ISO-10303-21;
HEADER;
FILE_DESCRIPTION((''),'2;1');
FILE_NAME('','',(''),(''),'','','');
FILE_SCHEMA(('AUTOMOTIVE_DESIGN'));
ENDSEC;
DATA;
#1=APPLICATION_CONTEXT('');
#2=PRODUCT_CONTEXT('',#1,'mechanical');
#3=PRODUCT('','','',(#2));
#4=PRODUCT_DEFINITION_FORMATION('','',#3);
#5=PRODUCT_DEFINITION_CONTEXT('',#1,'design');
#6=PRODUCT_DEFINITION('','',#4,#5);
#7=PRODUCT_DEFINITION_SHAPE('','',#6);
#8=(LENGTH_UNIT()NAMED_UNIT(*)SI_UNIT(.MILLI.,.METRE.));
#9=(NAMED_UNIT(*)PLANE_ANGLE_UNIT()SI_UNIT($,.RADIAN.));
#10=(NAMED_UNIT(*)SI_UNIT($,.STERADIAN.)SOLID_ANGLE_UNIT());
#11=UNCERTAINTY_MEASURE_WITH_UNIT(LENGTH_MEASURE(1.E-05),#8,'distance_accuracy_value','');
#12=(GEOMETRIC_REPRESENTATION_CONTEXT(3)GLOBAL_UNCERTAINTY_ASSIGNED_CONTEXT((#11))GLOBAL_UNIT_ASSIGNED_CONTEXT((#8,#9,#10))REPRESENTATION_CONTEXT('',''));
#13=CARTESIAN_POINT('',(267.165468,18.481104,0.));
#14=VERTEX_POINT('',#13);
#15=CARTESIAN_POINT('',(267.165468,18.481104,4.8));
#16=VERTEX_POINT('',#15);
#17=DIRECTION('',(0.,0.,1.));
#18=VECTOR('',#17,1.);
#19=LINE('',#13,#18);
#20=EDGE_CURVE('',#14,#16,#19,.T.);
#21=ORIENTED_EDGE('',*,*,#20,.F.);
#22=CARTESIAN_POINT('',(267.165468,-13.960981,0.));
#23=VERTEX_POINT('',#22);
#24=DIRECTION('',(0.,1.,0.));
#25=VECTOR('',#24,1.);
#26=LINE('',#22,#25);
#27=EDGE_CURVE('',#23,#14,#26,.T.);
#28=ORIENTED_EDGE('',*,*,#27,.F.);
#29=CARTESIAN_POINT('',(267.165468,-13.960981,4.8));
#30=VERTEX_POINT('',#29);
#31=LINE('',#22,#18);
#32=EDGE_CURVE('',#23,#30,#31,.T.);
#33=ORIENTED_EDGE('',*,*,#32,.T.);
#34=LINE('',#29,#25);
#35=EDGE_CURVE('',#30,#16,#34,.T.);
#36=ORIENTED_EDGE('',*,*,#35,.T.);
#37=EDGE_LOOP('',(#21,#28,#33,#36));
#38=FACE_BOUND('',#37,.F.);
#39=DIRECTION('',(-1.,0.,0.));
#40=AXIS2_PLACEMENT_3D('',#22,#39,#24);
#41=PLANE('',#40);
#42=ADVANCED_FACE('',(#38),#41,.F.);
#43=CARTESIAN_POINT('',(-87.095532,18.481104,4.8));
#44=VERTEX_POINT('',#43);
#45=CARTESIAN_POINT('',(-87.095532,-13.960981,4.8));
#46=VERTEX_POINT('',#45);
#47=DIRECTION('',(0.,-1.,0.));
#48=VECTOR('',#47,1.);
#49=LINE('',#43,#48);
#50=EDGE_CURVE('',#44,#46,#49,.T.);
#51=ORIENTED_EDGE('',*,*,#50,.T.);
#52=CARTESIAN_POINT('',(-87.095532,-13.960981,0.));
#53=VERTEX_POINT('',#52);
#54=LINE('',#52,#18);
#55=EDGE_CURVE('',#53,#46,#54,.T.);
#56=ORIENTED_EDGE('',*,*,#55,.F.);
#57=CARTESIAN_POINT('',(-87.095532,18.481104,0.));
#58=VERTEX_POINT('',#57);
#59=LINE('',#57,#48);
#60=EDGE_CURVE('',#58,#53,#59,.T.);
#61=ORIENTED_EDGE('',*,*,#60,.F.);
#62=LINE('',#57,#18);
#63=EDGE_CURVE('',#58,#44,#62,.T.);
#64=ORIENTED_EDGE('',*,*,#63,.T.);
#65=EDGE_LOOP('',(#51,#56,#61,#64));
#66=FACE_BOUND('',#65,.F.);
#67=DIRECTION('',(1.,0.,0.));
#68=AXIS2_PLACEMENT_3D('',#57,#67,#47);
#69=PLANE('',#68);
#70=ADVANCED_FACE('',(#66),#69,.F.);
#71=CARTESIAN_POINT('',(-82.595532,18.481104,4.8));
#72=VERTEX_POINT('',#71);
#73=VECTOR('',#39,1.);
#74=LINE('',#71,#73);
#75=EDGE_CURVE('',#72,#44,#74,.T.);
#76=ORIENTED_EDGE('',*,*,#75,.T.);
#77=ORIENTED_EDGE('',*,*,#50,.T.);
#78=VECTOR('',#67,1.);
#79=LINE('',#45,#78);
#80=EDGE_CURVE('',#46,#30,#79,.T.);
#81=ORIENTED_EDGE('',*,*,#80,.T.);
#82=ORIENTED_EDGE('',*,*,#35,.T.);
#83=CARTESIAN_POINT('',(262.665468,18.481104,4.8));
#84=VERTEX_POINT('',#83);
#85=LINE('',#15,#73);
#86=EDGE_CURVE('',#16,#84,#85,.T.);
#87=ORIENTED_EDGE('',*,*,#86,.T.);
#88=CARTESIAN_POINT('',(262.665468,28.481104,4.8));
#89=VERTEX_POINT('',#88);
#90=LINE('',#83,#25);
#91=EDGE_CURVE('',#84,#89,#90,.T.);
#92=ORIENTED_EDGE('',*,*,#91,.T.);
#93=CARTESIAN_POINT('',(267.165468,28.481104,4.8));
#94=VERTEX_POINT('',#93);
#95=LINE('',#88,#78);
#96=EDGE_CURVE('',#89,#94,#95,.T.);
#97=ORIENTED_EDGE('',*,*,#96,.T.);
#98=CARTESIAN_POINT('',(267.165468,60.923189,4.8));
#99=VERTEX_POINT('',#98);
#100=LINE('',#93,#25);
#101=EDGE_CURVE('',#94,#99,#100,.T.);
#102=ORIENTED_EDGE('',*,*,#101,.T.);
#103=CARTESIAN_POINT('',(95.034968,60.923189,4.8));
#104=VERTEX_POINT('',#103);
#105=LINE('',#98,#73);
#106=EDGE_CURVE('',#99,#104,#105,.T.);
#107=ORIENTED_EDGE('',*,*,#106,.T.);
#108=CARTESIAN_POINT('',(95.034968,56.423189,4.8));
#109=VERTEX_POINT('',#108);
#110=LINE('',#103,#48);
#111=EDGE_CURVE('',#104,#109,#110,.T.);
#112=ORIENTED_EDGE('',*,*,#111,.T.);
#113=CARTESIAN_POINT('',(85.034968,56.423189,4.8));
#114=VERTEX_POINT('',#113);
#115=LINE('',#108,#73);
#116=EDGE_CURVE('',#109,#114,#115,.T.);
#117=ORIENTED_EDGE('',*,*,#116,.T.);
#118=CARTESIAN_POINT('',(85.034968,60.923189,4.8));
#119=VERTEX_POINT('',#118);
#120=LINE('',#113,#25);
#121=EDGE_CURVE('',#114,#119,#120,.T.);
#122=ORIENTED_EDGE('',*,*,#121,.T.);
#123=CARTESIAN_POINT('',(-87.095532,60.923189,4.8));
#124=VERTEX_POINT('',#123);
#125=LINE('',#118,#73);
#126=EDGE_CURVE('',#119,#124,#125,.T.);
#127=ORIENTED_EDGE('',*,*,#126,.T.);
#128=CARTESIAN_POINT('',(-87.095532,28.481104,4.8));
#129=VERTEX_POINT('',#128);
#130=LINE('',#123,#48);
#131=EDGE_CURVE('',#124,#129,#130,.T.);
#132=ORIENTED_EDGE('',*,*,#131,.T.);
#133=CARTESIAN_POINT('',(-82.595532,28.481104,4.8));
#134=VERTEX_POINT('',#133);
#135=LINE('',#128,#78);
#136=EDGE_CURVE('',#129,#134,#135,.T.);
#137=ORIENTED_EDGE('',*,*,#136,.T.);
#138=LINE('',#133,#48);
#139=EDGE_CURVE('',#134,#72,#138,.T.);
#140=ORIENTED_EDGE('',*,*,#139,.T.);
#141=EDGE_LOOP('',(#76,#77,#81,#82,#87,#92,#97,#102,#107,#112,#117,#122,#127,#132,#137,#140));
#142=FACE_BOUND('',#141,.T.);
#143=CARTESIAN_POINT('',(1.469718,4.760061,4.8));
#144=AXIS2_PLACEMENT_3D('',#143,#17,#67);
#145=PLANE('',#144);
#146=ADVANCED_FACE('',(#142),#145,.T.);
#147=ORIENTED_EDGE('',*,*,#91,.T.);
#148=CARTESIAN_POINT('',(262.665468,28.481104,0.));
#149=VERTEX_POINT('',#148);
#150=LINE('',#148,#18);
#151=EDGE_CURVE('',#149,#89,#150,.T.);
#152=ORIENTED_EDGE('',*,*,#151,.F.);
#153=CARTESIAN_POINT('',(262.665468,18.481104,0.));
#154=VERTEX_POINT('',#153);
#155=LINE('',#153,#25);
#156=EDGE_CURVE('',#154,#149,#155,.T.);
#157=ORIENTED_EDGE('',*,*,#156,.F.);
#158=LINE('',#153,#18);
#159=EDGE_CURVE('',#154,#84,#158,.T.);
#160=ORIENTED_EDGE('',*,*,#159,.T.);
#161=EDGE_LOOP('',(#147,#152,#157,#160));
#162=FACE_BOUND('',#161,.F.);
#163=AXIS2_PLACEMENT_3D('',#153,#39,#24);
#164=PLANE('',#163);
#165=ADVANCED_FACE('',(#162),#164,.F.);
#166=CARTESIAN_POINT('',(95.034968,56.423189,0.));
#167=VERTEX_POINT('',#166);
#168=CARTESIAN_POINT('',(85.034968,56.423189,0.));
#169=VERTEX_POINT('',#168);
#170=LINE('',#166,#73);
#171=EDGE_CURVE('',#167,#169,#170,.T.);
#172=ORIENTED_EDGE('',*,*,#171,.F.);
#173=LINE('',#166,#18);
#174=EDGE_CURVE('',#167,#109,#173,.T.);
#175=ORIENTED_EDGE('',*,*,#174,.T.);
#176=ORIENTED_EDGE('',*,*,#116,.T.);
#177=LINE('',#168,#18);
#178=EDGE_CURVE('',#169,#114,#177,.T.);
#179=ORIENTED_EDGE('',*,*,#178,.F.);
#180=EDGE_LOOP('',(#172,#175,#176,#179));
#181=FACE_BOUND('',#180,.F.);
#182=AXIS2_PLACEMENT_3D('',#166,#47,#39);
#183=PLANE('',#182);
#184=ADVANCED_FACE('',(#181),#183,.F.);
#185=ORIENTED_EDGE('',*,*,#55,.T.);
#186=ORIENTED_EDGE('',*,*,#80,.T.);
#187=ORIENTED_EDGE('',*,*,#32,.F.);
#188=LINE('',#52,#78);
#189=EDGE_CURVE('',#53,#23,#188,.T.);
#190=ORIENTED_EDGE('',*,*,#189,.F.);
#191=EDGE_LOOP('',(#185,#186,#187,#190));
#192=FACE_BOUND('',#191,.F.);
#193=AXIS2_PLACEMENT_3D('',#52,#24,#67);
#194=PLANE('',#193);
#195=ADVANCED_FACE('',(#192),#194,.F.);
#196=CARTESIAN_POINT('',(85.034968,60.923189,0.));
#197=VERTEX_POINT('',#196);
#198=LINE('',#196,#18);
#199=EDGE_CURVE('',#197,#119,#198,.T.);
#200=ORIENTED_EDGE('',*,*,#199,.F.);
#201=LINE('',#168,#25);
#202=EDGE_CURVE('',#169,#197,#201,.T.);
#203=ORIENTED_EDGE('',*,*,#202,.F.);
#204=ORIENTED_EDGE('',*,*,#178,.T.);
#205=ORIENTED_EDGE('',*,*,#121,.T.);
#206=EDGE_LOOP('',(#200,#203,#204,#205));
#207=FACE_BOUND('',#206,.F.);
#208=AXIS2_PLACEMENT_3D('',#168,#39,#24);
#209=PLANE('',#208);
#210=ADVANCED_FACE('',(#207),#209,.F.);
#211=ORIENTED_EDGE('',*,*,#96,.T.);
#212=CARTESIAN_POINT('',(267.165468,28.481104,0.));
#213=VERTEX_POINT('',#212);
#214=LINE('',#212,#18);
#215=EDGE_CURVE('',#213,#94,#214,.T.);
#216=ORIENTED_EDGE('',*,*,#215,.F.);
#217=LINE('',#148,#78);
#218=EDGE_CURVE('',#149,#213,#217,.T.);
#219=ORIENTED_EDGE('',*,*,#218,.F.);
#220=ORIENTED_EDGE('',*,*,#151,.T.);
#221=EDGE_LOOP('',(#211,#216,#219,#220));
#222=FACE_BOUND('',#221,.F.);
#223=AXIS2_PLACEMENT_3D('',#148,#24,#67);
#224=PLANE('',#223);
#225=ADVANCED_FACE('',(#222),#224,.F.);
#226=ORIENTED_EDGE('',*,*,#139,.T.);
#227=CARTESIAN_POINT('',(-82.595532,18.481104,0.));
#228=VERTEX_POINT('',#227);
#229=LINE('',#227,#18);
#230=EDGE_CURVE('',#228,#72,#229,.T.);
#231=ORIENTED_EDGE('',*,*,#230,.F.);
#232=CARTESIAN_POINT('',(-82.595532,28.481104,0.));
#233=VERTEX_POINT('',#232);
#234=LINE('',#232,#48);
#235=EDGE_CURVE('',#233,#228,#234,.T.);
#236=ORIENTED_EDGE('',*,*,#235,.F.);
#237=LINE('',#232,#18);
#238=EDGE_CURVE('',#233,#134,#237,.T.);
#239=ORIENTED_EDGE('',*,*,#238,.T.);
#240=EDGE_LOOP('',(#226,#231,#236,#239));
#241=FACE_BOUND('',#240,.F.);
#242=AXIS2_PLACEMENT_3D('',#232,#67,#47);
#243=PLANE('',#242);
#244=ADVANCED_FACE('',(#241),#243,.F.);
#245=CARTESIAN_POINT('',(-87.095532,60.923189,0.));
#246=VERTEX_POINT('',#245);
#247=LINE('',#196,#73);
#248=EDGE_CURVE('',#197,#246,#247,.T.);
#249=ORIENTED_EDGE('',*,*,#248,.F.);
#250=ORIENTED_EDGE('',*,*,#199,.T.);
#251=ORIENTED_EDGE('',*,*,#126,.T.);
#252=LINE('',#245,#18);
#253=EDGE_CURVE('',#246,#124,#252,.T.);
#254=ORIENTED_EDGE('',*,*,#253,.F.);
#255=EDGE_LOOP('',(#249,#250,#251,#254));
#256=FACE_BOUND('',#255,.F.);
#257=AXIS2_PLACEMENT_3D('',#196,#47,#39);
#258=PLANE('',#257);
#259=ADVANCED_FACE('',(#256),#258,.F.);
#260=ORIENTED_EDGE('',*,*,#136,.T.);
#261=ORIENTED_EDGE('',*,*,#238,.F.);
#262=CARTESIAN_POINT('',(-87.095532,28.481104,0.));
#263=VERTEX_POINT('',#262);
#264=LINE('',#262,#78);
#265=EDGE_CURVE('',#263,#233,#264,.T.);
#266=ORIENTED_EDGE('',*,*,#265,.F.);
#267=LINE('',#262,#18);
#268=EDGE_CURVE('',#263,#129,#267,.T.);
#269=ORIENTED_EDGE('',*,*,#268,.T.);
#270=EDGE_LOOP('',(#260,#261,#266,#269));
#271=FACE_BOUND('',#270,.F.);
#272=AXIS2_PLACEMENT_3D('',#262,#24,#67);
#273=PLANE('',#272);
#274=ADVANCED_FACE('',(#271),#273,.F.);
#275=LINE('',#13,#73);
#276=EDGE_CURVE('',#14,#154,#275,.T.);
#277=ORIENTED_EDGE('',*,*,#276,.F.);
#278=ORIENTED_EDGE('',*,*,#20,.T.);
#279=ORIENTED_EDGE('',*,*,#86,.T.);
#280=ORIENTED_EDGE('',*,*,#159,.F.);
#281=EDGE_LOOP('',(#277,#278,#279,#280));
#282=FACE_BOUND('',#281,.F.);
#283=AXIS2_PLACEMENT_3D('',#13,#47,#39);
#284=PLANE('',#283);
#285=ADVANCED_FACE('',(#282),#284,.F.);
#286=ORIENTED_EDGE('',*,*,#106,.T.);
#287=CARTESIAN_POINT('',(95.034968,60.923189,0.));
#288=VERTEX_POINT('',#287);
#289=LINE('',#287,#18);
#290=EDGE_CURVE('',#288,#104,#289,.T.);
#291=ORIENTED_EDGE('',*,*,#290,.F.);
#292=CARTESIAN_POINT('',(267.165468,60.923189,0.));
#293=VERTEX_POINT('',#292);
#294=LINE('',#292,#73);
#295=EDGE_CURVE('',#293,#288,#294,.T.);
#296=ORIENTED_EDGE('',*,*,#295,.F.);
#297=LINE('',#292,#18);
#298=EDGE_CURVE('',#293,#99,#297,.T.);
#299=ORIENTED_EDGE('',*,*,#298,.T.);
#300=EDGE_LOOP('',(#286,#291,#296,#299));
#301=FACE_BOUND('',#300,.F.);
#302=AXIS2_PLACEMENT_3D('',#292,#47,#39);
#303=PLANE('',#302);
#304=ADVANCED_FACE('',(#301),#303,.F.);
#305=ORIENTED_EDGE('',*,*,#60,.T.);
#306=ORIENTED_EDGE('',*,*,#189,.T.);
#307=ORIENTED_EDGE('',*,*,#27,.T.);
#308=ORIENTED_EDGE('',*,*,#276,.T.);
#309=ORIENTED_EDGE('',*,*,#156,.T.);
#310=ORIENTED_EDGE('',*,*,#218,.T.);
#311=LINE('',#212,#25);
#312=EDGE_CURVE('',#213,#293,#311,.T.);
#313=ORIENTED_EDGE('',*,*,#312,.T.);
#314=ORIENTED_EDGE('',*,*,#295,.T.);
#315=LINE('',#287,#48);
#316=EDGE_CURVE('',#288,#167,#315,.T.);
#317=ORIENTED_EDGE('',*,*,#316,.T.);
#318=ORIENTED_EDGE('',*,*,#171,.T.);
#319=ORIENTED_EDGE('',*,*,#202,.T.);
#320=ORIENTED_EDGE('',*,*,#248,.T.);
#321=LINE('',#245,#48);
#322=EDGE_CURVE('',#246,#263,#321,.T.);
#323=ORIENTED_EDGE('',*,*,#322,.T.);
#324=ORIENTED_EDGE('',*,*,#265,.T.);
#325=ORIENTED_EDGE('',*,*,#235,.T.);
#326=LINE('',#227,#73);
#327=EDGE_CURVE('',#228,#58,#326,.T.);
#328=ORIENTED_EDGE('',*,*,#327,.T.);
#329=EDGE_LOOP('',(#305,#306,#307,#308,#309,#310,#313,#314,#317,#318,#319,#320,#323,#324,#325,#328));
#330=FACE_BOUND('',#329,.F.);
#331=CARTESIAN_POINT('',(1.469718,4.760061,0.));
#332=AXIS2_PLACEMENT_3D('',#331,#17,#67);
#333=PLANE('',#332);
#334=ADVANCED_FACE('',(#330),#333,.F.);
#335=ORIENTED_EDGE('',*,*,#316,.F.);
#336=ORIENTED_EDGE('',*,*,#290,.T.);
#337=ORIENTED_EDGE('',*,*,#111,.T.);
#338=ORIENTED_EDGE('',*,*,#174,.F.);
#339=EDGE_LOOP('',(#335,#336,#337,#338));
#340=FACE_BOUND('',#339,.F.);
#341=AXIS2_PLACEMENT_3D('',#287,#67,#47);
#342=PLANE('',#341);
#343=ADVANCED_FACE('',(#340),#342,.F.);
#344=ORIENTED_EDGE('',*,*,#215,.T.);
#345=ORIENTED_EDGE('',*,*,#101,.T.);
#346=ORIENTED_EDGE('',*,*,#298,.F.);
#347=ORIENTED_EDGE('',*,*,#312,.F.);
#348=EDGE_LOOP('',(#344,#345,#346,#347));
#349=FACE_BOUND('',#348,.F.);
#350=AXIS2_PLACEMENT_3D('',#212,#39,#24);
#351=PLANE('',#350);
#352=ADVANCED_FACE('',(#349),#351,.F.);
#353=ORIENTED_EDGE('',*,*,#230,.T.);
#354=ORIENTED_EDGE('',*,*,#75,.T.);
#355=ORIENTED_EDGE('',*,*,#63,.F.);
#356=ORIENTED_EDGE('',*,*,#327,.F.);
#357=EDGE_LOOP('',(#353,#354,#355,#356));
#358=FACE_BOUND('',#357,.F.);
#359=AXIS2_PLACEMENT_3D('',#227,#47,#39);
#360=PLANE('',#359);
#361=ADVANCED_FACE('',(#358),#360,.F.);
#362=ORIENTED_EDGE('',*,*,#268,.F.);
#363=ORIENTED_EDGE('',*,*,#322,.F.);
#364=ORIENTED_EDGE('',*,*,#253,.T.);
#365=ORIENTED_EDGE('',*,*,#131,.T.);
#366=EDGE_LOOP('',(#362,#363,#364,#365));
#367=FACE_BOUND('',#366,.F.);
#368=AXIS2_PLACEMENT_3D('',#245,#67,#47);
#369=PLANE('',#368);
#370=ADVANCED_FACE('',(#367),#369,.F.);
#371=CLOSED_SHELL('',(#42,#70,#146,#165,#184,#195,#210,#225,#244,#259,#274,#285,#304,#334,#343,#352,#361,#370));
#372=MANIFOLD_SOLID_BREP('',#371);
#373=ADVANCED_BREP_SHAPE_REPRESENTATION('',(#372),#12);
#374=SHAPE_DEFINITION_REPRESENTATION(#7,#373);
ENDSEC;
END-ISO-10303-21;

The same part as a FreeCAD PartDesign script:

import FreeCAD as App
import Part
import Sketcher
from FreeCAD import Vector

doc = App.newDocument("Part")
body = doc.addObject("PartDesign::Body", "Body")

sketch1 = doc.addObject("Sketcher::SketchObject", "Sketch")
body.addObject(sketch1)
sketch1.AttachmentSupport = (doc.XY_Plane, [""])
sketch1.MapMode = "FlatFace"
sketch1.addGeometry([
    Part.LineSegment(Vector(-82.595532, 18.481104, 0), Vector(-87.095532, 18.481104, 0)),
    Part.LineSegment(Vector(-87.095532, 18.481104, 0), Vector(-87.095532, -13.960981, 0)),
    Part.LineSegment(Vector(-87.095532, -13.960981, 0), Vector(267.165468, -13.960981, 0)),
    Part.LineSegment(Vector(267.165468, -13.960981, 0), Vector(267.165468, 18.481104, 0)),
    Part.LineSegment(Vector(267.165468, 18.481104, 0), Vector(262.665468, 18.481104, 0)),
    Part.LineSegment(Vector(262.665468, 18.481104, 0), Vector(262.665468, 28.481104, 0)),
    Part.LineSegment(Vector(262.665468, 28.481104, 0), Vector(267.165468, 28.481104, 0)),
    Part.LineSegment(Vector(267.165468, 28.481104, 0), Vector(267.165468, 60.923189, 0)),
    Part.LineSegment(Vector(267.165468, 60.923189, 0), Vector(95.034968, 60.923189, 0)),
    Part.LineSegment(Vector(95.034968, 60.923189, 0), Vector(95.034968, 56.423189, 0)),
    Part.LineSegment(Vector(95.034968, 56.423189, 0), Vector(85.034968, 56.423189, 0)),
    Part.LineSegment(Vector(85.034968, 56.423189, 0), Vector(85.034968, 60.923189, 0)),
    Part.LineSegment(Vector(85.034968, 60.923189, 0), Vector(-87.095532, 60.923189, 0)),
    Part.LineSegment(Vector(-87.095532, 60.923189, 0), Vector(-87.095532, 28.481104, 0)),
    Part.LineSegment(Vector(-87.095532, 28.481104, 0), Vector(-82.595532, 28.481104, 0)),
    Part.LineSegment(Vector(-82.595532, 28.481104, 0), Vector(-82.595532, 18.481104, 0)),
], False)
sketch1.addConstraint([
    Sketcher.Constraint("Coincident", 0, 2, 1, 1),
    Sketcher.Constraint("Coincident", 1, 2, 2, 1),
    Sketcher.Constraint("Coincident", 2, 2, 3, 1),
    Sketcher.Constraint("Coincident", 3, 2, 4, 1),
    Sketcher.Constraint("Coincident", 4, 2, 5, 1),
    Sketcher.Constraint("Coincident", 5, 2, 6, 1),
    Sketcher.Constraint("Coincident", 6, 2, 7, 1),
    Sketcher.Constraint("Coincident", 7, 2, 8, 1),
    Sketcher.Constraint("Coincident", 8, 2, 9, 1),
    Sketcher.Constraint("Coincident", 9, 2, 10, 1),
    Sketcher.Constraint("Coincident", 10, 2, 11, 1),
    Sketcher.Constraint("Coincident", 11, 2, 12, 1),
    Sketcher.Constraint("Coincident", 12, 2, 13, 1),
    Sketcher.Constraint("Coincident", 13, 2, 14, 1),
    Sketcher.Constraint("Coincident", 14, 2, 15, 1),
    Sketcher.Constraint("Coincident", 15, 2, 0, 1),
    Sketcher.Constraint("Horizontal", 0),
    Sketcher.Constraint("Vertical", 1),
    Sketcher.Constraint("Horizontal", 2),
    Sketcher.Constraint("Vertical", 3),
    Sketcher.Constraint("Horizontal", 4),
    Sketcher.Constraint("Vertical", 5),
    Sketcher.Constraint("Horizontal", 6),
    Sketcher.Constraint("Vertical", 7),
    Sketcher.Constraint("Horizontal", 8),
    Sketcher.Constraint("Vertical", 9),
    Sketcher.Constraint("Horizontal", 10),
    Sketcher.Constraint("Vertical", 11),
    Sketcher.Constraint("Horizontal", 12),
    Sketcher.Constraint("Vertical", 13),
    Sketcher.Constraint("Horizontal", 14),
    Sketcher.Constraint("Vertical", 15),
    Sketcher.Constraint("Horizontal", 0, 2, 3, 2),
    Sketcher.Constraint("Horizontal", 8, 2, 11, 2),
    Sketcher.Constraint("Horizontal", 6, 2, 13, 2),
    Sketcher.Constraint("Vertical", 3, 2, 6, 2),
    Sketcher.Constraint("Vertical", 1, 2, 12, 2),
    Sketcher.Constraint("Equal", 0, 4),
    Sketcher.Constraint("Equal", 8, 12),
    Sketcher.Constraint("Equal", 10, 5),
    Sketcher.Constraint("Equal", 3, 7),
    Sketcher.Constraint("Equal", 14, 9),
    Sketcher.Constraint("DistanceX", 10, 2, 10, 1, 10.0),
    Sketcher.Constraint("DistanceX", 0, 2, 0, 1, 4.5),
    Sketcher.Constraint("DistanceX", 2, 1, 2, 2, 354.261),
    Sketcher.Constraint("DistanceY", 1, 2, 1, 1, 32.442085),
    Sketcher.Constraint("DistanceY", 1, 2, -1, 1, 13.960981),
    Sketcher.Constraint("DistanceX", -1, 1, 8, 2, 95.034968),
])
pad1 = doc.addObject("PartDesign::Pad", "Pad")
body.addObject(pad1)
pad1.Profile = sketch1
pad1.Length = 4.8

doc.recompute()
